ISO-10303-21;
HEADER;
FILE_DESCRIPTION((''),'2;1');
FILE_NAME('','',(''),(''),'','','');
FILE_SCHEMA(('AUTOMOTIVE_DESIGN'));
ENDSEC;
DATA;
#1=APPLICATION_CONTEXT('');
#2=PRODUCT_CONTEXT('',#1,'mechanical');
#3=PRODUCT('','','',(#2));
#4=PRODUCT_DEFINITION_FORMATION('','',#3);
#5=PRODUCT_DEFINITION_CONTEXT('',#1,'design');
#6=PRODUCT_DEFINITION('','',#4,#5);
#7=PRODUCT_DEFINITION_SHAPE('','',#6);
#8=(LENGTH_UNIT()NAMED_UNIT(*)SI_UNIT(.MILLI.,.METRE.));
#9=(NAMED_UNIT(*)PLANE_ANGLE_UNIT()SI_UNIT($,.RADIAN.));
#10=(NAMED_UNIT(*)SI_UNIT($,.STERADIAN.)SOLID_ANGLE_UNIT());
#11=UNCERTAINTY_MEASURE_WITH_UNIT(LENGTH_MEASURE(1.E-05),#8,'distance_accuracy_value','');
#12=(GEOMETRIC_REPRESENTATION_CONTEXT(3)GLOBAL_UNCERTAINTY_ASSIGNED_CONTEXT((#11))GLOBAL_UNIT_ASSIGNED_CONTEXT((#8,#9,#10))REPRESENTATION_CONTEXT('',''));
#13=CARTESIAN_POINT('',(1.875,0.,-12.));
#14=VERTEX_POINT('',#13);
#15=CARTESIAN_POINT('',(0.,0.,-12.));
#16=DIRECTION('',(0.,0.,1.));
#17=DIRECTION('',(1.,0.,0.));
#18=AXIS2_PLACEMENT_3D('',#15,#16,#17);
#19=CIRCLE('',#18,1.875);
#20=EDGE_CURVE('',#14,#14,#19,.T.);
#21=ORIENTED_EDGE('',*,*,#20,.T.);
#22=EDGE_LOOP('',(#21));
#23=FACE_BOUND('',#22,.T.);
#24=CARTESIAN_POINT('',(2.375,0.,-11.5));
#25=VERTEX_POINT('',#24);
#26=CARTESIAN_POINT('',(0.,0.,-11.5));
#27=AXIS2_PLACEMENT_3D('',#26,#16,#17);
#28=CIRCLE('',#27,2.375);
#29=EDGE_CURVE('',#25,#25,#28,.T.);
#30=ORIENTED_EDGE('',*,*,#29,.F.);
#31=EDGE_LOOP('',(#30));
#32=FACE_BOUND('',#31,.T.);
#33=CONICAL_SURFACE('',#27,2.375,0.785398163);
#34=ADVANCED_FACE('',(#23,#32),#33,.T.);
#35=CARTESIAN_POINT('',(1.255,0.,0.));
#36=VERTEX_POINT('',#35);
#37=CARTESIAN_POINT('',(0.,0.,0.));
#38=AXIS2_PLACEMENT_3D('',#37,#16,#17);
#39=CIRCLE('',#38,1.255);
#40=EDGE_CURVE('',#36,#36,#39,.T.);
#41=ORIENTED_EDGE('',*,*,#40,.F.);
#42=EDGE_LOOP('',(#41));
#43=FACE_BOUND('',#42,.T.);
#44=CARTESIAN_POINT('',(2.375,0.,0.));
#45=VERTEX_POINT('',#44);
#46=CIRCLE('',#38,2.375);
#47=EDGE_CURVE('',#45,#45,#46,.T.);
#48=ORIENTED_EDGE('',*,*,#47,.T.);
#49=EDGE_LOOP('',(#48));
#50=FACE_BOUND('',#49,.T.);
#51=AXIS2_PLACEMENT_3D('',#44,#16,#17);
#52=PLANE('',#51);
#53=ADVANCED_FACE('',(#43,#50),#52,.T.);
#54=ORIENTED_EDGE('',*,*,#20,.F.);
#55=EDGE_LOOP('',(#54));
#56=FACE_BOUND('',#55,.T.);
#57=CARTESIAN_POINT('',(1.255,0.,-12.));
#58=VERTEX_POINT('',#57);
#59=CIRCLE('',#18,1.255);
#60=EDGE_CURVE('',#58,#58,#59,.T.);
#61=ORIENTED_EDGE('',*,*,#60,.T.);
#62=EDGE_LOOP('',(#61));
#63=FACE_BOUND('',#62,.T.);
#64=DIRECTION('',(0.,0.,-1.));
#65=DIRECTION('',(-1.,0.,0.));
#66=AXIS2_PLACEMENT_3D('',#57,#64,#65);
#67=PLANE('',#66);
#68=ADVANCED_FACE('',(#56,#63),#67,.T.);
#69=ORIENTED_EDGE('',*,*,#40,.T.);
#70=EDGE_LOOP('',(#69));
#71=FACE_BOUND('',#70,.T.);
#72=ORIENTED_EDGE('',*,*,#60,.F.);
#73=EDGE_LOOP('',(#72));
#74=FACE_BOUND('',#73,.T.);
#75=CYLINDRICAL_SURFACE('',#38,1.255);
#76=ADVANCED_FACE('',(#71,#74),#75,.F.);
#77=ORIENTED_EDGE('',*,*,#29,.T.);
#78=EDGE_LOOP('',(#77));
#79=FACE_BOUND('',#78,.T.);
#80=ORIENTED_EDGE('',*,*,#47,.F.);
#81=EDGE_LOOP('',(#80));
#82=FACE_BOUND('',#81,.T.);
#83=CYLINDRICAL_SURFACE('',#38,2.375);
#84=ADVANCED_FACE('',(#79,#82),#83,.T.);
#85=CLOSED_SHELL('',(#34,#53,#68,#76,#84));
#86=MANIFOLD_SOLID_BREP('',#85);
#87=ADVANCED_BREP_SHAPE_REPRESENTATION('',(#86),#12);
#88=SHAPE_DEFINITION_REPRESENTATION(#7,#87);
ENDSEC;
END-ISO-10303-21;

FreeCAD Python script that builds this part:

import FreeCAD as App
import Part
import Sketcher
from FreeCAD import Vector
Q = App.Units.Quantity

doc = App.newDocument("Part")
body = doc.addObject("PartDesign::Body", "Body")

# Sketch on XZ plane
sketch1 = doc.addObject("Sketcher::SketchObject", "Sketch")
body.addObject(sketch1)
sketch1.AttachmentSupport = (doc.XZ_Plane, [""])
sketch1.MapMode = "FlatFace"
sketch1.addGeometry([
    Part.LineSegment(Vector(1.255, -12, 0), Vector(1.255, 0, 0)),  # 0
    Part.LineSegment(Vector(1.255, 0, 0), Vector(2.375, 0, 0)),  # 1
    Part.LineSegment(Vector(2.375, 0, 0), Vector(2.375, -11.5, 0)),  # 2
    Part.LineSegment(Vector(2.375, -11.5, 0), Vector(1.875, -12, 0)),  # 3
    Part.LineSegment(Vector(1.875, -12, 0), Vector(1.255, -12, 0)),  # 4
], False)
sketch1.addConstraint([
    Sketcher.Constraint("Coincident", 0, 2, 1, 1),
    Sketcher.Constraint("Coincident", 1, 2, 2, 1),
    Sketcher.Constraint("Coincident", 2, 2, 3, 1),
    Sketcher.Constraint("Coincident", 3, 2, 4, 1),
    Sketcher.Constraint("Coincident", 4, 2, 0, 1),
    Sketcher.Constraint("Vertical", 0),
    Sketcher.Constraint("Horizontal", 1),
    Sketcher.Constraint("Vertical", 2),
    Sketcher.Constraint("Horizontal", 4),
    Sketcher.Constraint("PointOnObject", 0, 2, -1),
    Sketcher.Constraint("DistanceY", 0, 1, 0, 2, 12.0),
    Sketcher.Constraint("Angle", 3, Q("-135 deg")),
    Sketcher.Constraint("DistanceY", 2, 2, 2, 1, 11.5),
    Sketcher.Constraint("DistanceX", 1, 1, 1, 2, 1.12),
    Sketcher.Constraint("DistanceX", -1, 1, 0, 2, 1.255),
])
revolution = doc.addObject("PartDesign::Revolution", "Revolution")
body.addObject(revolution)
revolution.Profile = sketch1
revolution.ReferenceAxis = (sketch1, ["V_Axis"])
revolution.Angle = 360

doc.recompute()
